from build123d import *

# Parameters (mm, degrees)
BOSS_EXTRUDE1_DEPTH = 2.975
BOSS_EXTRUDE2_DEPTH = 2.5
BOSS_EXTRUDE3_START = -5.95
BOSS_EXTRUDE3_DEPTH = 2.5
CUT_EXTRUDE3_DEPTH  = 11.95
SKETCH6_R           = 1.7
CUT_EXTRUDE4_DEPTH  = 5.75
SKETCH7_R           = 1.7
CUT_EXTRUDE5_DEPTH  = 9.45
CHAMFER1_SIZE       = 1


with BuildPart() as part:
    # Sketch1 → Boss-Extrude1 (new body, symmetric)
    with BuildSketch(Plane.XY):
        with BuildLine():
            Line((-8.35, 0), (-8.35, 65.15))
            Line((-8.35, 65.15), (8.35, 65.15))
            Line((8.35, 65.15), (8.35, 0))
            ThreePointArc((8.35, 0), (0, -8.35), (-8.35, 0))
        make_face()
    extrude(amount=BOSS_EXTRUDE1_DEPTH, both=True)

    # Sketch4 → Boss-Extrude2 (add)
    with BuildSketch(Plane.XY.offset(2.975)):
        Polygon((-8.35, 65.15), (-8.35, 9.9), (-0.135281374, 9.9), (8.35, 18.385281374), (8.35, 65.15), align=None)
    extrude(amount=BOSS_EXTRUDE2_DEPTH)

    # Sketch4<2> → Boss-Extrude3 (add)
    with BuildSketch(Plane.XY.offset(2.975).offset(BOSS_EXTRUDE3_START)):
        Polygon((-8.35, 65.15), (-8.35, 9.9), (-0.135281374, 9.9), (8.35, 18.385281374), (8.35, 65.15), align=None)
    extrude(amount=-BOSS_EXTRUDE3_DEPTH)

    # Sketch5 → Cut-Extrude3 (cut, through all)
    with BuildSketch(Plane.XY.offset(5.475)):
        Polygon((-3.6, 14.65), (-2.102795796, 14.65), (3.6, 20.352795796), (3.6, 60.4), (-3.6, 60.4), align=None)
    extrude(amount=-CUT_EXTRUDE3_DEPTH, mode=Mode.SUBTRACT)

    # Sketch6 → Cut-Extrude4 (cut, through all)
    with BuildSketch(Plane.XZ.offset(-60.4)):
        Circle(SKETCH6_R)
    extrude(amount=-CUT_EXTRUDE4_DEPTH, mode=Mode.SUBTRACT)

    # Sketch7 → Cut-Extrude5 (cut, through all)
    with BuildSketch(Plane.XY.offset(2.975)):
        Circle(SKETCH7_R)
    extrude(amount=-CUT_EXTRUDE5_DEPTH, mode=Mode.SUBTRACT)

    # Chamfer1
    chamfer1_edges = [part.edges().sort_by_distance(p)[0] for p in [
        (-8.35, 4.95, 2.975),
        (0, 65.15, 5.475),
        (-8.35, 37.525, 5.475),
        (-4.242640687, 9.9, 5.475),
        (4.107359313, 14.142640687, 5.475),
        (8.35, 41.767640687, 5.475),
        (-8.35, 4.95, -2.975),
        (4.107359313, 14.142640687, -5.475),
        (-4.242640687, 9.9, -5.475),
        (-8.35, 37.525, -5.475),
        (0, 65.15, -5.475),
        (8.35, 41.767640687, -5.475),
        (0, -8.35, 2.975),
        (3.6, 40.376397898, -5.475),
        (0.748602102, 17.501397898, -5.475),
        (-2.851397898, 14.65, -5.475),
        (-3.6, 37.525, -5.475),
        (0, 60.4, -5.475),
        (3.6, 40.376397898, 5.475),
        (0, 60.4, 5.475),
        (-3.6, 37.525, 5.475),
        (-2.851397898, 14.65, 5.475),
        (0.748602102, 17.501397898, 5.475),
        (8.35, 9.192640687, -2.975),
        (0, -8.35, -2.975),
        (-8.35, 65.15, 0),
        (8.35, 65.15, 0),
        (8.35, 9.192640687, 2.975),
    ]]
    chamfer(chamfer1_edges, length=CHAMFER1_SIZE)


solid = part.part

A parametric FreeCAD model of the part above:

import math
import FreeCAD as App
import Part
import Sketcher
from FreeCAD import Vector
Q = App.Units.Quantity


def edges_at(feature, points):
    """Names of the edges that pass closest to the given points."""
    edges = feature.Shape.Edges
    near = lambda p: min(range(len(edges)), key=lambda i: edges[i].distToShape(Part.Vertex(*p))[0])
    return sorted({f"Edge{near(p) + 1}" for p in points})

doc = App.newDocument("Part")
body = doc.addObject("PartDesign::Body", "Body")

# Sketch on XY plane
sketch1 = body.newObject("Sketcher::SketchObject", "Sketch")
sketch1.AttachmentSupport = (doc.getObject("XY_Plane"), [""])
sketch1.MapMode = "FlatFace"
sketch1.addGeometry([
    Part.LineSegment(Vector(-8, 65, 0), Vector(-8, 0, 0)),
    Part.ArcOfCircle(Part.Circle(Vector(0, 0, 0), Vector(0, 0, 1), 8), math.radians(180), math.radians(360)),
    Part.LineSegment(Vector(8, 0, 0), Vector(8, 65, 0)),
    Part.LineSegment(Vector(8, 65, 0), Vector(-8, 65, 0)),
], False)
sketch1.addConstraint([
    Sketcher.Constraint("Tangent", 0, 2, 1, 1),
    Sketcher.Constraint("Tangent", 1, 2, 2, 1),
    Sketcher.Constraint("Coincident", 2, 2, 3, 1),
    Sketcher.Constraint("Coincident", 3, 2, 0, 1),
    Sketcher.Constraint("Vertical", 0),
    Sketcher.Constraint("Vertical", 2),
    Sketcher.Constraint("Horizontal", 3),
    Sketcher.Constraint("Coincident", 1, 3, -1, 1),
    Sketcher.Constraint("Radius", 1, Q("8.35 mm")),
    Sketcher.Constraint("DistanceY", 0, 2, 0, 1, Q("65.15 mm")),
])
pad1 = body.newObject("PartDesign::Pad", "Pad")
pad1.Profile = sketch1
pad1.Length = 5.95
pad1.Midplane = True

# Sketch on XY plane
sketch2 = body.newObject("Sketcher::SketchObject", "Sketch001")
sketch2.AttachmentSupport = (doc.getObject("XY_Plane"), [""])
sketch2.MapMode = "FlatFace"
sketch2.AttachmentOffset = App.Placement(Vector(0, 0, 2.975), App.Rotation())
sketch2.addGeometry([
    Part.LineSegment(Vector(-8, 65, 0), Vector(-8, 10, 0)),  # 0
    Part.LineSegment(Vector(-8, 10, 0), Vector(0, 10, 0)),  # 1
    Part.LineSegment(Vector(0, 10, 0), Vector(8, 18, 0)),  # 2
    Part.LineSegment(Vector(8, 18, 0), Vector(8, 65, 0)),  # 3
    Part.LineSegment(Vector(8, 65, 0), Vector(-8, 65, 0)),  # 4
], False)
sketch2.addConstraint([
    Sketcher.Constraint("Coincident", 0, 2, 1, 1),
    Sketcher.Constraint("Coincident", 1, 2, 2, 1),
    Sketcher.Constraint("Coincident", 2, 2, 3, 1),
    Sketcher.Constraint("Coincident", 3, 2, 4, 1),
    Sketcher.Constraint("Coincident", 4, 2, 0, 1),
    Sketcher.Constraint("Vertical", 0),
    Sketcher.Constraint("Horizontal", 1),
    Sketcher.Constraint("Vertical", 3),
    Sketcher.Constraint("Horizontal", 4),
    Sketcher.Constraint("Angle", 2, Q("45 deg")),
    Sketcher.Constraint("Distance", 2, Q("12 mm")),
    Sketcher.Constraint("DistanceX", 4, 2, 4, 1, Q("16.7 mm")),
    Sketcher.Constraint("DistanceY", 0, 2, 0, 1, Q("55.25 mm")),
    Sketcher.Constraint("DistanceY", -1, 1, 0, 2, Q("9.9 mm")),
    Sketcher.Constraint("DistanceX", 0, 2, -1, 1, Q("8.35 mm")),
])
pad2 = body.newObject("PartDesign::Pad", "Pad001")
pad2.Profile = sketch2
pad2.Length = 2.5

# Sketch on XY plane
sketch3 = body.newObject("Sketcher::SketchObject", "Sketch002")
sketch3.AttachmentSupport = (doc.getObject("XY_Plane"), [""])
sketch3.MapMode = "FlatFace"
sketch3.AttachmentOffset = App.Placement(Vector(0, 0, -2.975), App.Rotation())
sketch3.addGeometry([
    Part.LineSegment(Vector(-8, 65, 0), Vector(-8, 10, 0)),  # 0
    Part.LineSegment(Vector(-8, 10, 0), Vector(0, 10, 0)),  # 1
    Part.LineSegment(Vector(0, 10, 0), Vector(8, 18, 0)),  # 2
    Part.LineSegment(Vector(8, 18, 0), Vector(8, 65, 0)),  # 3
    Part.LineSegment(Vector(8, 65, 0), Vector(-8, 65, 0)),  # 4
], False)
sketch3.addConstraint([
    Sketcher.Constraint("Coincident", 0, 2, 1, 1),
    Sketcher.Constraint("Coincident", 1, 2, 2, 1),
    Sketcher.Constraint("Coincident", 2, 2, 3, 1),
    Sketcher.Constraint("Coincident", 3, 2, 4, 1),
    Sketcher.Constraint("Coincident", 4, 2, 0, 1),
    Sketcher.Constraint("Vertical", 0),
    Sketcher.Constraint("Horizontal", 1),
    Sketcher.Constraint("Vertical", 3),
    Sketcher.Constraint("Horizontal", 4),
    Sketcher.Constraint("Angle", 2, Q("45 deg")),
    Sketcher.Constraint("Distance", 2, Q("12 mm")),
    Sketcher.Constraint("DistanceX", 4, 2, 4, 1, Q("16.7 mm")),
    Sketcher.Constraint("DistanceY", 0, 2, 0, 1, Q("55.25 mm")),
    Sketcher.Constraint("DistanceY", -1, 1, 0, 2, Q("9.9 mm")),
    Sketcher.Constraint("DistanceX", 0, 2, -1, 1, Q("8.35 mm")),
])
pad3 = body.newObject("PartDesign::Pad", "Pad002")
pad3.Profile = sketch3
pad3.Length = 2.5
pad3.Reversed = True

# Sketch on XY plane
sketch4 = body.newObject("Sketcher::SketchObject", "Sketch003")
sketch4.AttachmentSupport = (doc.getObject("XY_Plane"), [""])
sketch4.MapMode = "FlatFace"
sketch4.AttachmentOffset = App.Placement(Vector(0, 0, 5.475), App.Rotation())
sketch4.addGeometry([
    Part.LineSegment(Vector(-3.6, 14.7, 0), Vector(-2.1, 14.7, 0)),  # 0
    Part.LineSegment(Vector(-2.1, 14.7, 0), Vector(3.6, 20.4, 0)),  # 1
    Part.LineSegment(Vector(3.6, 20.4, 0), Vector(3.6, 60.4, 0)),  # 2
    Part.LineSegment(Vector(3.6, 60.4, 0), Vector(-3.6, 60.4, 0)),  # 3
    Part.LineSegment(Vector(-3.6, 60.4, 0), Vector(-3.6, 14.7, 0)),  # 4
], False)
sketch4.addConstraint([
    Sketcher.Constraint("Coincident", 0, 2, 1, 1),
    Sketcher.Constraint("Coincident", 1, 2, 2, 1),
    Sketcher.Constraint("Coincident", 2, 2, 3, 1),
    Sketcher.Constraint("Coincident", 3, 2, 4, 1),
    Sketcher.Constraint("Coincident", 4, 2, 0, 1),
    Sketcher.Constraint("Horizontal", 0),
    Sketcher.Constraint("Vertical", 2),
    Sketcher.Constraint("Horizontal", 3),
    Sketcher.Constraint("Vertical", 4),
    Sketcher.Constraint("Angle", 1, Q("45 deg")),
    Sketcher.Constraint("DistanceX", 3, 2, 3, 1, Q("7.2 mm")),
    Sketcher.Constraint("DistanceY", 4, 2, 4, 1, Q("45.75 mm")),
    Sketcher.Constraint("DistanceX", -1, 1, 1, 2, Q("3.6 mm")),
    Sketcher.Constraint("DistanceY", -1, 1, 2, 2, Q("60.4 mm")),
    Sketcher.Constraint("Distance", 1, Q("8.064971 mm")),
])
pocket1 = body.newObject("PartDesign::Pocket", "Pocket")
pocket1.Profile = sketch4
pocket1.Type = "ThroughAll"

# Sketch on XZ plane
sketch5 = body.newObject("Sketcher::SketchObject", "Sketch004")
sketch5.AttachmentSupport = (doc.getObject("XZ_Plane"), [""])
sketch5.MapMode = "FlatFace"
sketch5.AttachmentOffset = App.Placement(Vector(0, 0, -60.4), App.Rotation())
sketch5.addGeometry(Part.Circle(Vector(0, 0, 0), Vector(0, 0, 1), 1.7), False)
sketch5.addConstraint([
    Sketcher.Constraint("Coincident", 0, 3, -1, 1),
    Sketcher.Constraint("Diameter", 0, Q("3.4 mm")),
])
pocket2 = body.newObject("PartDesign::Pocket", "Pocket001")
pocket2.Profile = sketch5
pocket2.Type = "ThroughAll"

# Sketch on XY plane
sketch6 = body.newObject("Sketcher::SketchObject", "Sketch005")
sketch6.AttachmentSupport = (doc.getObject("XY_Plane"), [""])
sketch6.MapMode = "FlatFace"
sketch6.AttachmentOffset = App.Placement(Vector(0, 0, 2.975), App.Rotation())
sketch6.addGeometry(Part.Circle(Vector(0, 0, 0), Vector(0, 0, 1), 1.7), False)
sketch6.addConstraint([
    Sketcher.Constraint("Coincident", 0, 3, -1, 1),
    Sketcher.Constraint("Diameter", 0, Q("3.4 mm")),
])
pocket3 = body.newObject("PartDesign::Pocket", "Pocket002")
pocket3.Profile = sketch6
pocket3.Type = "ThroughAll"
doc.recompute()

chamfer = body.newObject("PartDesign::Chamfer", "Chamfer")
chamfer.Base = (pocket3, edges_at(pocket3, [
    (-8.35, 4.95, 2.975),
    (0, 65.15, 5.475),
    (-8.35, 37.525, 5.475),
    (-4.243, 9.9, 5.475),
    (4.107, 14.143, 5.475),
    (8.35, 41.768, 5.475),
    (-8.35, 4.95, -2.975),
    (4.107, 14.143, -5.475),
    (-4.243, 9.9, -5.475),
    (-8.35, 37.525, -5.475),
    (0, 65.15, -5.475),
    (8.35, 41.768, -5.475),
    (0, -8.35, 2.975),
    (3.6, 40.376, -5.475),
    (0.749, 17.501, -5.475),
    (-2.851, 14.65, -5.475),
    (-3.6, 37.525, -5.475),
    (0, 60.4, -5.475),
    (3.6, 40.376, 5.475),
    (0, 60.4, 5.475),
    (-3.6, 37.525, 5.475),
    (-2.851, 14.65, 5.475),
    (0.749, 17.501, 5.475),
    (8.35, 9.193, -2.975),
    (0, -8.35, -2.975),
    (-8.35, 65.15, 0),
    (8.35, 65.15, 0),
    (8.35, 9.193, 2.975),
]))
chamfer.Size = 1

doc.recompute()
